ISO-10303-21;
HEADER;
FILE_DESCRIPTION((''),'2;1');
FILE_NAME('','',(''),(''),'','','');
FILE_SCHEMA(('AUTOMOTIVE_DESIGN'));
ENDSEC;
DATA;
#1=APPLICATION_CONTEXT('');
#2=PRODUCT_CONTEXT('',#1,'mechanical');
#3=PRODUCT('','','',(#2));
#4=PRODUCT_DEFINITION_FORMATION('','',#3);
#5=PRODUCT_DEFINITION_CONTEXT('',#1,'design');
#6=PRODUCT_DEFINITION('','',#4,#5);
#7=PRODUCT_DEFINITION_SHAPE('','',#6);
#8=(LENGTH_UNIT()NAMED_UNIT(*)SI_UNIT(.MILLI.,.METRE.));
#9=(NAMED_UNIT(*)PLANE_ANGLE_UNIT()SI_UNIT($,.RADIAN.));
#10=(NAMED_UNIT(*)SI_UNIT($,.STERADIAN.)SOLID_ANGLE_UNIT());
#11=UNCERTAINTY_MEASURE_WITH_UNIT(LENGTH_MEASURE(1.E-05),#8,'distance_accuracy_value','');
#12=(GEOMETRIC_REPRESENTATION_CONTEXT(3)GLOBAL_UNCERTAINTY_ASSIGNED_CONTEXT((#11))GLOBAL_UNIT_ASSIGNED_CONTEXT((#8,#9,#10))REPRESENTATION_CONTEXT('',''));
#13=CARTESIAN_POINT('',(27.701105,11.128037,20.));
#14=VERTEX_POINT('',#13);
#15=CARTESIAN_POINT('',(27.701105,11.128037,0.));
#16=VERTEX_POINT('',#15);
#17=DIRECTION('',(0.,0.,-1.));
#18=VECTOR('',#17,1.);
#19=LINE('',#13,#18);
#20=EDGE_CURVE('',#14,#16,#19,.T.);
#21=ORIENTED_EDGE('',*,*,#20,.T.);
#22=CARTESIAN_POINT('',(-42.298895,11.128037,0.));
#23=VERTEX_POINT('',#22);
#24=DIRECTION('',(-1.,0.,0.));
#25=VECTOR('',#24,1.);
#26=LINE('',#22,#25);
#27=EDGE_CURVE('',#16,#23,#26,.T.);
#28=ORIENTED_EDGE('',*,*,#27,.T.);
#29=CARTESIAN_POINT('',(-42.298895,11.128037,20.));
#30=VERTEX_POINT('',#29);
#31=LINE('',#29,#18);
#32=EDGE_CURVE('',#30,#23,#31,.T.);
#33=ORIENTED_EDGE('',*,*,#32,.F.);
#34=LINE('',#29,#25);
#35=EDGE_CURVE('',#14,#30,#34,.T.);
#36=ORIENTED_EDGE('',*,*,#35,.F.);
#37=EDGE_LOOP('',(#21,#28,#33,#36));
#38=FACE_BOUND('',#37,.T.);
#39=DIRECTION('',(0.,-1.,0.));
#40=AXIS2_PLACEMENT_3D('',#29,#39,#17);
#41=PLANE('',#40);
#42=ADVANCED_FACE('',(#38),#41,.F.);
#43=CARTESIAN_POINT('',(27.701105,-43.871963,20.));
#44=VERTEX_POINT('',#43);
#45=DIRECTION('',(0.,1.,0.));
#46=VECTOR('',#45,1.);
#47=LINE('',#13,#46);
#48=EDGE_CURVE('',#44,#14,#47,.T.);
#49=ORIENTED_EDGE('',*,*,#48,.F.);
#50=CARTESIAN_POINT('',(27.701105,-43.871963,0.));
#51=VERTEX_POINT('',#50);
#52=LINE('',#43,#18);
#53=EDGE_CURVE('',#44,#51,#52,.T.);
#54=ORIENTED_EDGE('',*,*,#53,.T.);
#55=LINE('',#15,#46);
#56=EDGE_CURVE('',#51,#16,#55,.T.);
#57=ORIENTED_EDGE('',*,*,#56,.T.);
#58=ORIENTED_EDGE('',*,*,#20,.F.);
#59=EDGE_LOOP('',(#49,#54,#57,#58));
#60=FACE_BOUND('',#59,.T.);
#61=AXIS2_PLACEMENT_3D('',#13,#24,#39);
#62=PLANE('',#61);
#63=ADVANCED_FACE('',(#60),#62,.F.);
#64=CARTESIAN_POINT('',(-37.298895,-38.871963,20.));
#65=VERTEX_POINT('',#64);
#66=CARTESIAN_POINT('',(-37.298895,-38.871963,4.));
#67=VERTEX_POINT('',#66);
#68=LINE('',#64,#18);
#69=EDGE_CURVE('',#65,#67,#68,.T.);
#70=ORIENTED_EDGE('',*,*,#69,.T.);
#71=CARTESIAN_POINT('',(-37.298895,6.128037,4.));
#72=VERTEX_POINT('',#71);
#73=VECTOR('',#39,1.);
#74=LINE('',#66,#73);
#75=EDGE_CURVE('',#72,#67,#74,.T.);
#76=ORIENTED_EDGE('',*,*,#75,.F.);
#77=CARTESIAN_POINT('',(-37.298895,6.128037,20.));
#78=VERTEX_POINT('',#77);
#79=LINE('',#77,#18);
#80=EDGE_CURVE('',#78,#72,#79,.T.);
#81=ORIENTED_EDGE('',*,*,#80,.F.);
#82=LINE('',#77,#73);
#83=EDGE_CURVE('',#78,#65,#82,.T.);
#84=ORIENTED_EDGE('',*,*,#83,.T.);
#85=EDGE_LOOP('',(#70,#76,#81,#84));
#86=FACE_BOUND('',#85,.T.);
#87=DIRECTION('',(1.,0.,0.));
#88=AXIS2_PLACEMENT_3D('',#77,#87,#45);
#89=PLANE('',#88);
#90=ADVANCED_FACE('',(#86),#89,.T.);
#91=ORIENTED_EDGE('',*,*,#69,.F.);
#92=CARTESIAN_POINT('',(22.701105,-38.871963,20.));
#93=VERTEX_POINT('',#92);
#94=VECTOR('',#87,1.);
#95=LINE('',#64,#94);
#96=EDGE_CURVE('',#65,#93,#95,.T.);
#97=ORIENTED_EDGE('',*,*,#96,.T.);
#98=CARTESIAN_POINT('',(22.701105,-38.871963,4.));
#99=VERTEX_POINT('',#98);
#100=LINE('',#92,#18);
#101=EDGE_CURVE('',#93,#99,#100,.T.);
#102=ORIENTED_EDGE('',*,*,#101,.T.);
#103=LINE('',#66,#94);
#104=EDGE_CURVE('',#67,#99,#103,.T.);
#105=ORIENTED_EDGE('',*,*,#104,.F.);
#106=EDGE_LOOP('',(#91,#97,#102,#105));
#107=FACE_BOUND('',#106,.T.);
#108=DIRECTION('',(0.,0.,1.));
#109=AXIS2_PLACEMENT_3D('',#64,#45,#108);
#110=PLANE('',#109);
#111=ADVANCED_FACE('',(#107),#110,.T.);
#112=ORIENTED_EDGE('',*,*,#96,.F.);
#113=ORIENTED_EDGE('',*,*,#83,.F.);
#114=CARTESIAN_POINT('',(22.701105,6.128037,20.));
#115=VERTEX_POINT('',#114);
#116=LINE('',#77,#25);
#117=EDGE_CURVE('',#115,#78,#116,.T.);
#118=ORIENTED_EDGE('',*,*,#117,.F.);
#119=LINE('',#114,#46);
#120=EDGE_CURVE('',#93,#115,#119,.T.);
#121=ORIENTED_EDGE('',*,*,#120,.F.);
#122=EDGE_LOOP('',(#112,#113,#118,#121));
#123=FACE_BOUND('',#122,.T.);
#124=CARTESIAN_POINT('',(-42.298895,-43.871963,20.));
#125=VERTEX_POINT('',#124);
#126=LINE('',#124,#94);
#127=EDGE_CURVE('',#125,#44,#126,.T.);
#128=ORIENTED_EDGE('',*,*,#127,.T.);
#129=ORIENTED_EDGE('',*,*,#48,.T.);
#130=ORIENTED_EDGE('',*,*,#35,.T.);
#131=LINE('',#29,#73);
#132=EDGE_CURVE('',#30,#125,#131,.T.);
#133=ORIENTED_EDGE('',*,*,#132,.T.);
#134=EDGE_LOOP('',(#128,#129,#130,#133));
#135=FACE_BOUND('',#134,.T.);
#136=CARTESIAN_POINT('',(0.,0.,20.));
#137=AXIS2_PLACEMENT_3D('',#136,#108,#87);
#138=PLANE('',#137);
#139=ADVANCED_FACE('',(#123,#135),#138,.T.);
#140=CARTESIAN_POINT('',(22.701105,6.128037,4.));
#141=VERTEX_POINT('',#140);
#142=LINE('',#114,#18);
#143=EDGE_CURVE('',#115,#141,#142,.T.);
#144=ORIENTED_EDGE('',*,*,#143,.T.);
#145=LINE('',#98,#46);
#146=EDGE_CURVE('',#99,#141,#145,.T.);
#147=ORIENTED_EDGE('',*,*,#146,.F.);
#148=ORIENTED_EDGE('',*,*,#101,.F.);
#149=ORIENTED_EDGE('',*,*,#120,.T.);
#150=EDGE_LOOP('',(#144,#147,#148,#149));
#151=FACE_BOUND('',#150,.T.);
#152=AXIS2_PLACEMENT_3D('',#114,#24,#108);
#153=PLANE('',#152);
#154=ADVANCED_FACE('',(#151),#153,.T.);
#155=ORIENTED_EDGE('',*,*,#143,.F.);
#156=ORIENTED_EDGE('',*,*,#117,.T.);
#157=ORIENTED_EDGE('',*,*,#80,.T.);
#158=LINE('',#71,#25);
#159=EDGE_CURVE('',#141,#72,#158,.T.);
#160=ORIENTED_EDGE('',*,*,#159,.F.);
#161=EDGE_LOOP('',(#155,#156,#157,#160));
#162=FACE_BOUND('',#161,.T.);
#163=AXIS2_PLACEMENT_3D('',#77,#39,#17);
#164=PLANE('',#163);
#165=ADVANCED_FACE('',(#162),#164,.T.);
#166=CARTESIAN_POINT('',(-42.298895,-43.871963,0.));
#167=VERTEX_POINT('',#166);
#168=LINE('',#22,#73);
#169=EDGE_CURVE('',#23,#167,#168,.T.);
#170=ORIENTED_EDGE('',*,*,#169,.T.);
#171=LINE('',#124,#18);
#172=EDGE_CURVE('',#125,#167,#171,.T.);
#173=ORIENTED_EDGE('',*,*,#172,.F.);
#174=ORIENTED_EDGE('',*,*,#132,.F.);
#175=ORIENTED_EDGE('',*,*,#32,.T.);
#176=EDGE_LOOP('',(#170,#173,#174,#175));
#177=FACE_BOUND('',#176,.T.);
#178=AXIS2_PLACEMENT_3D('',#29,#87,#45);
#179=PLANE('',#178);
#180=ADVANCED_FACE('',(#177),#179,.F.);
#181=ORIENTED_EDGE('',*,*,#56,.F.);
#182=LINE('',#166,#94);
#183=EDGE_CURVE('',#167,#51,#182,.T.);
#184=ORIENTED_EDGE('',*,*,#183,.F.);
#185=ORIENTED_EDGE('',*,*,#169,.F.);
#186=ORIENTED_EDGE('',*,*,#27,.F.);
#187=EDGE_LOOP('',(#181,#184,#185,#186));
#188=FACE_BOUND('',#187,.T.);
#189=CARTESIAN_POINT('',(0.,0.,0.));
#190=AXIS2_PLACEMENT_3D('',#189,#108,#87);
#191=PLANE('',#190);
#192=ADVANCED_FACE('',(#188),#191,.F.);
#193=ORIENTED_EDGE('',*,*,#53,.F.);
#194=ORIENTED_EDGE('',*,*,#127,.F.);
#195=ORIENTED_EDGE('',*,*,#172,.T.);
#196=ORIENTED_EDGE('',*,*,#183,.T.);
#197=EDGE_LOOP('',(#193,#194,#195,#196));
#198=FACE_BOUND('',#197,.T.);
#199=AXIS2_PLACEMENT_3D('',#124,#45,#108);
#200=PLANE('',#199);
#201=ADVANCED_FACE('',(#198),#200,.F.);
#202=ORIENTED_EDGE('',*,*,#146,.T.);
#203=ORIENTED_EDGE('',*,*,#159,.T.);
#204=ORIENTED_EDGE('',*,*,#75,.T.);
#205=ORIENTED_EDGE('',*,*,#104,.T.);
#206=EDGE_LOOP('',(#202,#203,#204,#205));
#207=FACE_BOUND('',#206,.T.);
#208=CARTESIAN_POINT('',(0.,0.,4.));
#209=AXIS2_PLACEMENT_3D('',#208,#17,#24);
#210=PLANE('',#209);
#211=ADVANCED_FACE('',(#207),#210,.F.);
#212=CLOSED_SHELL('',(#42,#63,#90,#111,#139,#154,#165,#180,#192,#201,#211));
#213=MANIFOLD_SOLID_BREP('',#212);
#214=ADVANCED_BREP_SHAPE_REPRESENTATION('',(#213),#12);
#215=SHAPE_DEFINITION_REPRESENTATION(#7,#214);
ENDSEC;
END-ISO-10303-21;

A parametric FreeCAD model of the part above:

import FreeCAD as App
import Part
import Sketcher
from FreeCAD import Vector
Q = App.Units.Quantity


def add_polygon(sketch, points):
    """Adds a closed chain of lines whose ends are joined by coincident constraints."""
    first, n = sketch.GeometryCount, len(points)
    for a, b in zip(points, points[1:] + points[:1]):
        sketch.addGeometry(Part.LineSegment(App.Vector(*a, 0), App.Vector(*b, 0)), False)
    for i in range(n):
        sketch.addConstraint(Sketcher.Constraint("Coincident", first + i, 2, first + (i + 1) % n, 1))

doc = App.newDocument("Part")
params = doc.addObject("Spreadsheet::Sheet", "Params")
for row, (alias, value) in enumerate([
    ("sketch1_width", "70 mm"),
    ("sketch1_width2", "60 mm"),
    ("sketch1_height", "55 mm"),
    ("sketch1_height2", "45 mm"),
    ("pad1_length", "20 mm"),
    ("sketch2_width", "60 mm"),
    ("sketch2_height", "45 mm"),
    ("pad2_length", "4 mm"),
], start=1):
    params.set(f"A{row}", alias)
    params.set(f"B{row}", "=" + value)
    params.setAlias(f"B{row}", alias)

body = doc.addObject("PartDesign::Body", "Body")

# Sketch on XY plane
sketch1 = body.newObject("Sketcher::SketchObject", "Sketch")
sketch1.AttachmentSupport = (doc.getObject("XY_Plane"), [""])
sketch1.MapMode = "FlatFace"
add_polygon(sketch1, [(-42, 11), (-42, -44), (28, -44), (28, 11)])  # lines 0-3
add_polygon(sketch1, [(23, -39), (-37, -39), (-37, 6), (23, 6)])  # lines 4-7
sketch1.addConstraint([
    Sketcher.Constraint("Vertical", 0),
    Sketcher.Constraint("Horizontal", 1),
    Sketcher.Constraint("Vertical", 2),
    Sketcher.Constraint("Horizontal", 3),
    Sketcher.Constraint("Horizontal", 4),
    Sketcher.Constraint("Vertical", 5),
    Sketcher.Constraint("Horizontal", 6),
    Sketcher.Constraint("Vertical", 7),
    Sketcher.Constraint("DistanceX", 1, 1, 1, 2, Q("70 mm")),
    Sketcher.Constraint("DistanceX", 4, 2, 4, 1, Q("60 mm")),
    Sketcher.Constraint("DistanceY", 0, 2, 0, 1, Q("55 mm")),
    Sketcher.Constraint("DistanceY", 5, 1, 5, 2, Q("45 mm")),
    Sketcher.Constraint("DistanceX", 0, 2, 4, 2, Q("5 mm")),
    Sketcher.Constraint("DistanceY", 0, 2, 4, 2, Q("5 mm")),
    Sketcher.Constraint("DistanceX", 0, 2, -1, 1, Q("42.298895 mm")),
    Sketcher.Constraint("DistanceY", 0, 2, -1, 1, Q("43.871963 mm")),
])
sketch1.setExpression("Constraints[16]", "Params.sketch1_width")
sketch1.setExpression("Constraints[17]", "Params.sketch1_width2")
sketch1.setExpression("Constraints[18]", "Params.sketch1_height")
sketch1.setExpression("Constraints[19]", "Params.sketch1_height2")
pad1 = body.newObject("PartDesign::Pad", "Pad")
pad1.Profile = sketch1
pad1.setExpression("Length", "Params.pad1_length")

# Sketch on XY plane
sketch2 = body.newObject("Sketcher::SketchObject", "Sketch001")
sketch2.AttachmentSupport = (doc.getObject("XY_Plane"), [""])
sketch2.MapMode = "FlatFace"
add_polygon(sketch2, [(-37, 6), (-37, -39), (23, -39), (23, 6)])  # lines 0-3
sketch2.addConstraint([
    Sketcher.Constraint("Vertical", 0),
    Sketcher.Constraint("Horizontal", 1),
    Sketcher.Constraint("Vertical", 2),
    Sketcher.Constraint("Horizontal", 3),
    Sketcher.Constraint("DistanceX", 1, 1, 1, 2, Q("60 mm")),
    Sketcher.Constraint("DistanceY", 0, 2, 0, 1, Q("45 mm")),
    Sketcher.Constraint("DistanceX", 0, 2, -1, 1, Q("37.298895 mm")),
    Sketcher.Constraint("DistanceY", 0, 2, -1, 1, Q("38.871963 mm")),
])
sketch2.setExpression("Constraints[8]", "Params.sketch2_width")
sketch2.setExpression("Constraints[9]", "Params.sketch2_height")
pad2 = body.newObject("PartDesign::Pad", "Pad001")
pad2.Profile = sketch2
pad2.setExpression("Length", "Params.pad2_length")

doc.recompute()
